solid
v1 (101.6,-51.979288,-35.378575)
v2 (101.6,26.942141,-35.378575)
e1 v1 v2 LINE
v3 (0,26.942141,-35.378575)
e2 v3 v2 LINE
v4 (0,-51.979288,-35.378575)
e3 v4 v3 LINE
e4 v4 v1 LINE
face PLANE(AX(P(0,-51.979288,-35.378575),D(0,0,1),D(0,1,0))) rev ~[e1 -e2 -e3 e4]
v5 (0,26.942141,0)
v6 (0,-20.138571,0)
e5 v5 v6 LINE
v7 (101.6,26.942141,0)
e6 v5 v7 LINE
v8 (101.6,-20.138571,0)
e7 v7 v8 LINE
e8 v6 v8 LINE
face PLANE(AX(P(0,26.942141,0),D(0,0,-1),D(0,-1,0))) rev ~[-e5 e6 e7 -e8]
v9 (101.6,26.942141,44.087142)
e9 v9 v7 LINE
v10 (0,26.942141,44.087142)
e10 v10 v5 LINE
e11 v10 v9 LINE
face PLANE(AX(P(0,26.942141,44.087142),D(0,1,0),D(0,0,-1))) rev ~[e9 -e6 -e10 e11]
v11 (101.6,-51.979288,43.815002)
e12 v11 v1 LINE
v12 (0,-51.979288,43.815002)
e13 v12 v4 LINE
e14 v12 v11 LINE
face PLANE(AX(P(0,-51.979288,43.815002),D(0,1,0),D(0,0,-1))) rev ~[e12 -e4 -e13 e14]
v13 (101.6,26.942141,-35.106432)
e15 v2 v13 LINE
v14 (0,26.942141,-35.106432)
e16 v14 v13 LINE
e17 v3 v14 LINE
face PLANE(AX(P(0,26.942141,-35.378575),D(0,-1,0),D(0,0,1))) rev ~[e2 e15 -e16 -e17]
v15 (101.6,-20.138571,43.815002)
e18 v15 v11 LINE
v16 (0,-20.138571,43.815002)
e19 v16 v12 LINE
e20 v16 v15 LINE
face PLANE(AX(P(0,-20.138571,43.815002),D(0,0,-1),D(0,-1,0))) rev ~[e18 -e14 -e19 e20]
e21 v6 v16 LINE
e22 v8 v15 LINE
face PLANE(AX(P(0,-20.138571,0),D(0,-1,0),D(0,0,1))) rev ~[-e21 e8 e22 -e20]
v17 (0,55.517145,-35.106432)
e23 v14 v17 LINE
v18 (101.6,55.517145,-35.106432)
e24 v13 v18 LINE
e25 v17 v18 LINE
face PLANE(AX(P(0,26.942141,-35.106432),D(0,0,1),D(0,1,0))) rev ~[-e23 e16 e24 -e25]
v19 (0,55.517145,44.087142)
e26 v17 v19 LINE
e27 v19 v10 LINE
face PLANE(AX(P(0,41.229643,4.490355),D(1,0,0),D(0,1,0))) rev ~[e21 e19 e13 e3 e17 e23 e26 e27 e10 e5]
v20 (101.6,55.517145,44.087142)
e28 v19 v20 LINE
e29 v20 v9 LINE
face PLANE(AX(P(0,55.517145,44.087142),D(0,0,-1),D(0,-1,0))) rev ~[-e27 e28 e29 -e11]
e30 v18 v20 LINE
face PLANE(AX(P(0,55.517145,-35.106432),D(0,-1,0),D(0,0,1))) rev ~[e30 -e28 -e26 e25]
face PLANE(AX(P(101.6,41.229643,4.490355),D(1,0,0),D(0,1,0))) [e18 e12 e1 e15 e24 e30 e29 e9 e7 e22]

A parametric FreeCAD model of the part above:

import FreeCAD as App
import Part
import Sketcher

V = App.Vector
Q = App.Units.Quantity

doc = App.newDocument("Part")
body = doc.addObject("PartDesign::Body", "Body")

sketch1 = doc.addObject("Sketcher::SketchObject", "Sketch")
body.addObject(sketch1)
sketch1.AttachmentSupport = (doc.YZ_Plane, [""])
sketch1.MapMode = "FlatFace"
sketch1.addGeometry([
    Part.LineSegment(V(55.52, -35.11, 0), V(55.52, 44.09, 0)),
    Part.LineSegment(V(55.52, 44.09, 0), V(26.94, 44.09, 0)),
    Part.LineSegment(V(26.94, 44.09, 0), V(26.94, 0, 0)),
    Part.LineSegment(V(26.94, 0, 0), V(-20.14, 0, 0)),
    Part.LineSegment(V(-20.14, 0, 0), V(-20.14, 43.82, 0)),
    Part.LineSegment(V(-20.14, 43.82, 0), V(-51.98, 43.82, 0)),
    Part.LineSegment(V(-51.98, 43.82, 0), V(-51.98, -35.38, 0)),
    Part.LineSegment(V(-51.98, -35.38, 0), V(26.94, -35.38, 0)),
    Part.LineSegment(V(26.94, -35.38, 0), V(26.94, -35.11, 0)),
    Part.LineSegment(V(26.94, -35.11, 0), V(55.52, -35.11, 0)),
], False)
sketch1.addConstraint([
    Sketcher.Constraint("Coincident", 0, 2, 1, 1),
    Sketcher.Constraint("Coincident", 1, 2, 2, 1),
    Sketcher.Constraint("Coincident", 2, 2, 3, 1),
    Sketcher.Constraint("Coincident", 3, 2, 4, 1),
    Sketcher.Constraint("Coincident", 4, 2, 5, 1),
    Sketcher.Constraint("Coincident", 5, 2, 6, 1),
    Sketcher.Constraint("Coincident", 6, 2, 7, 1),
    Sketcher.Constraint("Coincident", 7, 2, 8, 1),
    Sketcher.Constraint("Coincident", 8, 2, 9, 1),
    Sketcher.Constraint("Coincident", 9, 2, 0, 1),
    Sketcher.Constraint("Vertical", 0),
    Sketcher.Constraint("Horizontal", 1),
    Sketcher.Constraint("Vertical", 2),
    Sketcher.Constraint("Horizontal", 3),
    Sketcher.Constraint("Vertical", 4),
    Sketcher.Constraint("Horizontal", 5),
    Sketcher.Constraint("Vertical", 6),
    Sketcher.Constraint("Horizontal", 7),
    Sketcher.Constraint("Vertical", 8),
    Sketcher.Constraint("Horizontal", 9),
    Sketcher.Constraint("PointOnObject", 2, 2, -1),
    Sketcher.Constraint("Vertical", 2, 2, 7, 2),
    Sketcher.Constraint("DistanceX", 1, 2, 1, 1, Q("1.1250002 in")),
    Sketcher.Constraint("DistanceY", 4, 1, 4, 2, Q("1.7250001 in")),
    Sketcher.Constraint("DistanceX", 3, 2, 3, 1, Q("47.080712 mm")),
    Sketcher.Constraint("DistanceX", 7, 1, 7, 2, Q("78.921429 mm")),
    Sketcher.Constraint("DistanceY", 0, 1, 0, 2, Q("79.193574 mm")),
    Sketcher.Constraint("DistanceY", 2, 2, 2, 1, Q("44.087142 mm")),
    Sketcher.Constraint("DistanceY", 6, 2, 6, 1, Q("79.193577 mm")),
    Sketcher.Constraint("DistanceX", -1, 1, 1, 2, Q("26.942141 mm")),
])
pad1 = doc.addObject("PartDesign::Pad", "Pad")
body.addObject(pad1)
pad1.Profile = sketch1
pad1.Length = Q("4 in")

doc.recompute()
